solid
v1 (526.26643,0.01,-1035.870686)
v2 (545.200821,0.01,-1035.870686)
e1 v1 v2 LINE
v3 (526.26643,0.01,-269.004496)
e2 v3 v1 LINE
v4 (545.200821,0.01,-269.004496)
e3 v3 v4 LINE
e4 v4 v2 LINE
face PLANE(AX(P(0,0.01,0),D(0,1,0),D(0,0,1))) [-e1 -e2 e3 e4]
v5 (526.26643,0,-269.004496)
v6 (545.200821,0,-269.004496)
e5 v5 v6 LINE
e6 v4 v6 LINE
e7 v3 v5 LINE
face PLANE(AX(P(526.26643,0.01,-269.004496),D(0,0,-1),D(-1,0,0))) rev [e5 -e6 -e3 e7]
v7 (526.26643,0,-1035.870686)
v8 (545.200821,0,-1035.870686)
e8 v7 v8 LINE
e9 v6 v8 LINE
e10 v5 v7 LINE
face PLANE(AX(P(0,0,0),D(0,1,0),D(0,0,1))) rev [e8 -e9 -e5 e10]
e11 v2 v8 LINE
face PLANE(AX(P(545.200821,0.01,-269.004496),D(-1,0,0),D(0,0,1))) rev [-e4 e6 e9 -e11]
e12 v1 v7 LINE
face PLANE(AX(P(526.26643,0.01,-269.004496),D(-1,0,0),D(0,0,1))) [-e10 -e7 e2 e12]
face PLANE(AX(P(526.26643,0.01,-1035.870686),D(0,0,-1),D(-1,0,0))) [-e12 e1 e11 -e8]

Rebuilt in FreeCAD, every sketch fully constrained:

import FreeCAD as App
import Part
import Sketcher

V = App.Vector


def add_polygon(sketch, points):
    """Adds a closed chain of lines whose ends are joined by coincident constraints."""
    first, n = sketch.GeometryCount, len(points)
    for a, b in zip(points, points[1:] + points[:1]):
        sketch.addGeometry(Part.LineSegment(App.Vector(*a, 0), App.Vector(*b, 0)), False)
    for i in range(n):
        sketch.addConstraint(Sketcher.Constraint("Coincident", first + i, 2, first + (i + 1) % n, 1))

doc = App.newDocument("Part")
params = doc.addObject("Spreadsheet::Sheet", "Params")
for row, (alias, value) in enumerate([
    ("pad1_length", "0.01 mm"),
], start=1):
    params.set(f"A{row}", alias)
    params.set(f"B{row}", "=" + value)
    params.setAlias(f"B{row}", alias)

body = doc.addObject("PartDesign::Body", "Body")

# Sketch on XZ plane
sketch1 = doc.addObject("Sketcher::SketchObject", "Sketch")
body.addObject(sketch1)
sketch1.AttachmentSupport = (doc.XZ_Plane, [""])
sketch1.MapMode = "FlatFace"
add_polygon(sketch1, [(526, -1036), (526, -269), (545, -269), (545, -1036)])  # lines 0-3
sketch1.addConstraint(Sketcher.Constraint("Vertical", 0))
sketch1.addConstraint(Sketcher.Constraint("Horizontal", 1))
sketch1.addConstraint(Sketcher.Constraint("Vertical", 2))
sketch1.addConstraint(Sketcher.Constraint("Horizontal", 3))
sketch1.addConstraint(Sketcher.Constraint("DistanceX", 1, 1, 1, 2, 18.934391))
sketch1.addConstraint(Sketcher.Constraint("DistanceY", 0, 1, 0, 2, 766.86619))
sketch1.addConstraint(Sketcher.Constraint("DistanceX", -1, 1, 0, 2, 526.26643))
sketch1.addConstraint(Sketcher.Constraint("DistanceY", 0, 2, -1, 1, 269.004496))
pad1 = doc.addObject("PartDesign::Pad", "Pad")
body.addObject(pad1)
pad1.Profile = sketch1
pad1.setExpression("Length", "Params.pad1_length")
pad1.Reversed = True

doc.recompute()
